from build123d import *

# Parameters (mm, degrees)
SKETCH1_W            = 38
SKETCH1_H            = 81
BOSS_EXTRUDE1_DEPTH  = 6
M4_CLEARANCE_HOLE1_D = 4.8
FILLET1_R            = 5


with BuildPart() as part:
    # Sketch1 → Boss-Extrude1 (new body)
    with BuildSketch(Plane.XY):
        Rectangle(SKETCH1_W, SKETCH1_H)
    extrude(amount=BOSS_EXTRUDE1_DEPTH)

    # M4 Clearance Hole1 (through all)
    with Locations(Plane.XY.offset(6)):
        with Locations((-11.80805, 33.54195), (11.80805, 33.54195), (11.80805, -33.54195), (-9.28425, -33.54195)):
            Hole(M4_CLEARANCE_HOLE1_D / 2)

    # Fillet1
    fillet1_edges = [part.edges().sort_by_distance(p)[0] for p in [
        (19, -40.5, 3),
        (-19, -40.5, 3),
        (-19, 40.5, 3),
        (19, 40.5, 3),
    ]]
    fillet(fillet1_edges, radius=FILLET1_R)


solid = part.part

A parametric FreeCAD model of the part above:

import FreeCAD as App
import Part
import Sketcher

V = App.Vector
Q = App.Units.Quantity


def edges_at(feature, points):
    """Names of the edges that pass closest to the given points."""
    edges = feature.Shape.Edges
    near = lambda p: min(range(len(edges)), key=lambda i: edges[i].distToShape(Part.Vertex(*p))[0])
    return sorted({f"Edge{near(p) + 1}" for p in points})

doc = App.newDocument("Part")
body = doc.addObject("PartDesign::Body", "Body")

sketch1 = body.newObject("Sketcher::SketchObject", "Sketch")
sketch1.AttachmentSupport = (doc.getObject("XY_Plane"), [""])
sketch1.MapMode = "FlatFace"
sketch1.addGeometry([
    Part.LineSegment(V(-19, 40.5, 0), V(-19, -40.5, 0)),
    Part.LineSegment(V(-19, -40.5, 0), V(19, -40.5, 0)),
    Part.LineSegment(V(19, -40.5, 0), V(19, 40.5, 0)),
    Part.LineSegment(V(19, 40.5, 0), V(-19, 40.5, 0)),
], False)
sketch1.addConstraint([
    Sketcher.Constraint("Coincident", 0, 2, 1, 1),
    Sketcher.Constraint("Coincident", 1, 2, 2, 1),
    Sketcher.Constraint("Coincident", 2, 2, 3, 1),
    Sketcher.Constraint("Coincident", 3, 2, 0, 1),
    Sketcher.Constraint("Vertical", 0),
    Sketcher.Constraint("Horizontal", 1),
    Sketcher.Constraint("Vertical", 2),
    Sketcher.Constraint("Horizontal", 3),
    Sketcher.Constraint("Symmetric", 0, 2, 2, 2, -1, 1),
    Sketcher.Constraint("DistanceX", 1, 1, 1, 2, Q("38 mm")),
    Sketcher.Constraint("DistanceY", 0, 2, 0, 1, Q("81 mm")),
])
pad1 = body.newObject("PartDesign::Pad", "Pad")
pad1.Profile = sketch1
pad1.Length = 6

sketch2 = body.newObject("Sketcher::SketchObject", "Sketch001")
sketch2.AttachmentSupport = (doc.getObject("XY_Plane"), [""])
sketch2.MapMode = "FlatFace"
sketch2.AttachmentOffset = App.Placement(V(0, 0, 6), App.Rotation())
sketch2.addGeometry([
    Part.Circle(V(-11.80805, 33.54195, 0), V(0, 0, 1), 2.4),
    Part.Circle(V(11.80805, 33.54195, 0), V(0, 0, 1), 2.4),
    Part.Circle(V(11.80805, -33.54195, 0), V(0, 0, 1), 2.4),
    Part.Circle(V(-9.28425, -33.54195, 0), V(0, 0, 1), 2.4),
], False)
sketch2.addConstraint([
    Sketcher.Constraint("Equal", 0, 1),
    Sketcher.Constraint("Equal", 1, 2),
    Sketcher.Constraint("Equal", 2, 3),
    Sketcher.Constraint("Symmetric", 0, 3, 2, 3, -1, 1),
    Sketcher.Constraint("Symmetric", 0, 3, 1, 3, -2),
    Sketcher.Constraint("Horizontal", 2, 3, 3, 3),
    Sketcher.Constraint("Diameter", 0, Q("4.8 mm")),
    Sketcher.Constraint("DistanceX", 0, 3, 1, 3, Q("23.6161 mm")),
    Sketcher.Constraint("DistanceY", 2, 3, 1, 3, Q("67.0839 mm")),
    Sketcher.Constraint("DistanceX", 3, 3, 2, 3, Q("21.0923 mm")),
])
doc.recompute()
hole = body.newObject("PartDesign::Hole", "Hole")
hole.Profile = sketch2
hole.ThreadType = "None"
hole.Diameter = 4.8
hole.DepthType = "ThroughAll"
doc.recompute()

fillet = body.newObject("PartDesign::Fillet", "Fillet")
fillet.Base = (hole, edges_at(hole, [
    (19, -40.5, 3),
    (-19, -40.5, 3),
    (-19, 40.5, 3),
    (19, 40.5, 3),
]))
fillet.Radius = 5

doc.recompute()
